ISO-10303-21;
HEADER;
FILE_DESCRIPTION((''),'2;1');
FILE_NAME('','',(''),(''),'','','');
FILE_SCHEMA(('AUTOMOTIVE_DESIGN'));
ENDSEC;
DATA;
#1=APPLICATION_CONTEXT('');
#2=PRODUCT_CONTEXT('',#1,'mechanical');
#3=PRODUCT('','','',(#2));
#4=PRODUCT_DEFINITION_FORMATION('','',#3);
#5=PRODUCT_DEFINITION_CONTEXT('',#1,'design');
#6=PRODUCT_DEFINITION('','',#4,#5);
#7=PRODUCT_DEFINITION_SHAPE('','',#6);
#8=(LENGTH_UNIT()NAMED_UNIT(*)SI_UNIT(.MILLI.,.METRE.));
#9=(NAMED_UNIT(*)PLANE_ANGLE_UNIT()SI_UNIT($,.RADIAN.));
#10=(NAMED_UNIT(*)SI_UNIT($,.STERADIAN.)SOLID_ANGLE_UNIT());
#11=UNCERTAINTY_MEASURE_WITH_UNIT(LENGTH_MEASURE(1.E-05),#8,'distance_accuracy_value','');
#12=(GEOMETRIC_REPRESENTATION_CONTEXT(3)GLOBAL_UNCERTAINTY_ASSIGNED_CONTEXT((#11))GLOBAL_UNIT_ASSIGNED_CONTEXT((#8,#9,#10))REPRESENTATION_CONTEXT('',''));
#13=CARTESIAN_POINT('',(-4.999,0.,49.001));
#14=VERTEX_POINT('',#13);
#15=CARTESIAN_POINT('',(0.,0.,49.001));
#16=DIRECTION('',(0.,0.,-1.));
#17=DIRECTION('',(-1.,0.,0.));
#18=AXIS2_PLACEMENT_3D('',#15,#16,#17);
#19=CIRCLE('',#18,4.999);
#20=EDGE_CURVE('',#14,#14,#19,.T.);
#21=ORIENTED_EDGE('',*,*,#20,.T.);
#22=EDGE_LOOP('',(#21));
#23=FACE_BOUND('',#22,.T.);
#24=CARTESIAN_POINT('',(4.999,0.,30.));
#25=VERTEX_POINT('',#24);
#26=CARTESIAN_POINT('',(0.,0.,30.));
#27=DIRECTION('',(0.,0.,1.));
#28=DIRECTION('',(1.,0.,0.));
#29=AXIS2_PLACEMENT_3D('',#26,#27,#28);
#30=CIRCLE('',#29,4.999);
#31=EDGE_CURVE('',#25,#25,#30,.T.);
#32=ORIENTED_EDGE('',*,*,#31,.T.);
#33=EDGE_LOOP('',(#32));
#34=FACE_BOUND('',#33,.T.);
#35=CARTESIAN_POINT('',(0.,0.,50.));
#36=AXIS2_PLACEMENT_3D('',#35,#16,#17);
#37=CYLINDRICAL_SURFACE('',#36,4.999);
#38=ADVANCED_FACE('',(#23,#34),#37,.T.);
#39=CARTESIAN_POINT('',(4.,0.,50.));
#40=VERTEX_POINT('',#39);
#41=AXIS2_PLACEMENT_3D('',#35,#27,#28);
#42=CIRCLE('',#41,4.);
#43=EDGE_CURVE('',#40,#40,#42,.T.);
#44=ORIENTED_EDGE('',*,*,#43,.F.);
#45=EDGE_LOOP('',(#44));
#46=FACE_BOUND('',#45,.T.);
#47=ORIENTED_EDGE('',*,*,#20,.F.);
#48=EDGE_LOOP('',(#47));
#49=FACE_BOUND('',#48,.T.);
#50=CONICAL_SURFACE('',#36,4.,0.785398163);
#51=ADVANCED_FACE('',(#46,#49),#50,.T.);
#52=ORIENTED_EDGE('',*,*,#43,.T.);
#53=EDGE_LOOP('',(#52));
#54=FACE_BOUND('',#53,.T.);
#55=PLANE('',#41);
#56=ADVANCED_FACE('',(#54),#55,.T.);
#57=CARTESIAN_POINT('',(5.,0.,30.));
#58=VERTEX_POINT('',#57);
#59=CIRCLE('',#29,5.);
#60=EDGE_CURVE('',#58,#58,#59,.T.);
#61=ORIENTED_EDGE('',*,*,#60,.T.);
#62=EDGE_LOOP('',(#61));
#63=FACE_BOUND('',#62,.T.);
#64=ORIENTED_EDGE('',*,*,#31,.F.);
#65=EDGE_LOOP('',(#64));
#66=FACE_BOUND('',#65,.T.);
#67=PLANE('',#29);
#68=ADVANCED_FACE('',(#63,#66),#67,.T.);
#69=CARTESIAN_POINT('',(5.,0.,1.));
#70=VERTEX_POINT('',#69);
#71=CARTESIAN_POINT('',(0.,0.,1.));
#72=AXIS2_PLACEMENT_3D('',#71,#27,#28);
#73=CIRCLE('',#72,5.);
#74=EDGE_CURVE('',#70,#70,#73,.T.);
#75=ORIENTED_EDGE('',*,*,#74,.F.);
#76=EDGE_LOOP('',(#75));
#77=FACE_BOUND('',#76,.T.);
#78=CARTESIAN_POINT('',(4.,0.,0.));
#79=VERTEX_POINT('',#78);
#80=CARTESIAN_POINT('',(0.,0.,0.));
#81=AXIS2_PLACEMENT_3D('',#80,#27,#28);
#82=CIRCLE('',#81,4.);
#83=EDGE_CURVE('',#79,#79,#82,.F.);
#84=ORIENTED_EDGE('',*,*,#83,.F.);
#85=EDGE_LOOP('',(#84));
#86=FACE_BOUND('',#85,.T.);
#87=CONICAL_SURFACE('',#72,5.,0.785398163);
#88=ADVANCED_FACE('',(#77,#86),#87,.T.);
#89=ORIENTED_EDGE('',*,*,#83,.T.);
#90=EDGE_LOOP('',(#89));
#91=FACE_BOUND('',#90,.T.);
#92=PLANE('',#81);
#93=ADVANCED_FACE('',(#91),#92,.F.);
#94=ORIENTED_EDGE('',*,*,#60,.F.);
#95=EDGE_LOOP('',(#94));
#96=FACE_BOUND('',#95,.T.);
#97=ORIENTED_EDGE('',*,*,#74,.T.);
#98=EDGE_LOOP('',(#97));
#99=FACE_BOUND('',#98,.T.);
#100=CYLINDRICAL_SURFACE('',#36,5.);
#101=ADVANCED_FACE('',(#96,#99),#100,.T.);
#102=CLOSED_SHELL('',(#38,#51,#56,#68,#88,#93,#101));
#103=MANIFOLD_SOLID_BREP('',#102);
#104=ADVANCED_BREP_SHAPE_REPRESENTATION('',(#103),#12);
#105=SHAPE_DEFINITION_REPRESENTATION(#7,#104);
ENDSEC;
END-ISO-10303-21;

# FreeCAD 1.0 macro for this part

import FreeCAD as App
import Part
import Sketcher
from FreeCAD import Vector
Q = App.Units.Quantity


def edges_at(feature, points):
    """Names of the edges that pass closest to the given points."""
    edges = feature.Shape.Edges
    near = lambda p: min(range(len(edges)), key=lambda i: edges[i].distToShape(Part.Vertex(*p))[0])
    return sorted({f"Edge{near(p) + 1}" for p in points})


def add_polygon(sketch, points):
    """Adds a closed chain of lines whose ends are joined by coincident constraints."""
    first, n = sketch.GeometryCount, len(points)
    for a, b in zip(points, points[1:] + points[:1]):
        sketch.addGeometry(Part.LineSegment(App.Vector(*a, 0), App.Vector(*b, 0)), False)
    for i in range(n):
        sketch.addConstraint(Sketcher.Constraint("Coincident", first + i, 2, first + (i + 1) % n, 1))

doc = App.newDocument("Part")
body = doc.addObject("PartDesign::Body", "Body")

sketch1 = body.newObject("Sketcher::SketchObject", "Sketch")
sketch1.AttachmentSupport = (doc.getObject("XY_Plane"), [""])
sketch1.MapMode = "FlatFace"
sketch1.addGeometry(Part.Circle(Vector(0, 0, 0), Vector(0, 0, 1), 5), False)
sketch1.addConstraint(Sketcher.Constraint("Coincident", 0, 3, -1, 1))
sketch1.addConstraint(Sketcher.Constraint("Diameter", 0, Q("10 mm")))
pad1 = body.newObject("PartDesign::Pad", "Pad")
pad1.Profile = sketch1
pad1.Length = 50
doc.recompute()

chamfer = body.newObject("PartDesign::Chamfer", "Chamfer")
chamfer.Base = (pad1, edges_at(pad1, [(-5, 0, 0), (-5, 0, 50)]))
chamfer.Size = 1

sketch2 = body.newObject("Sketcher::SketchObject", "Sketch001")
sketch2.AttachmentSupport = (doc.getObject("XY_Plane"), [""])
sketch2.MapMode = "FlatFace"
sketch2.AttachmentOffset = App.Placement(Vector(0, 0, 30), App.Rotation())
add_polygon(sketch2, [(-11.2, 11.2), (-11.2, -11.2), (11.2, -11.2), (11.2, 11.2)])
sketch2.addGeometry(Part.Circle(Vector(0, 0, 0), Vector(0, 0, 1), 5), False)
sketch2.addConstraint(Sketcher.Constraint("Vertical", 0))
sketch2.addConstraint(Sketcher.Constraint("Horizontal", 1))
sketch2.addConstraint(Sketcher.Constraint("Vertical", 2))
sketch2.addConstraint(Sketcher.Constraint("Horizontal", 3))
sketch2.addConstraint(Sketcher.Constraint("Coincident", 4, 3, -1, 1))
sketch2.addConstraint(Sketcher.Constraint("Symmetric", 0, 2, 2, 2, -1, 1))
sketch2.addConstraint(Sketcher.Constraint("Equal", 3, 0))
sketch2.addConstraint(Sketcher.Constraint("Diameter", 4, Q("9.998 mm")))
sketch2.addConstraint(Sketcher.Constraint("DistanceX", 1, 1, 1, 2, Q("22.392 mm")))
pocket1 = body.newObject("PartDesign::Pocket", "Pocket")
pocket1.Profile = sketch2
pocket1.Type = "ThroughAll"
pocket1.Reversed = True

doc.recompute()
